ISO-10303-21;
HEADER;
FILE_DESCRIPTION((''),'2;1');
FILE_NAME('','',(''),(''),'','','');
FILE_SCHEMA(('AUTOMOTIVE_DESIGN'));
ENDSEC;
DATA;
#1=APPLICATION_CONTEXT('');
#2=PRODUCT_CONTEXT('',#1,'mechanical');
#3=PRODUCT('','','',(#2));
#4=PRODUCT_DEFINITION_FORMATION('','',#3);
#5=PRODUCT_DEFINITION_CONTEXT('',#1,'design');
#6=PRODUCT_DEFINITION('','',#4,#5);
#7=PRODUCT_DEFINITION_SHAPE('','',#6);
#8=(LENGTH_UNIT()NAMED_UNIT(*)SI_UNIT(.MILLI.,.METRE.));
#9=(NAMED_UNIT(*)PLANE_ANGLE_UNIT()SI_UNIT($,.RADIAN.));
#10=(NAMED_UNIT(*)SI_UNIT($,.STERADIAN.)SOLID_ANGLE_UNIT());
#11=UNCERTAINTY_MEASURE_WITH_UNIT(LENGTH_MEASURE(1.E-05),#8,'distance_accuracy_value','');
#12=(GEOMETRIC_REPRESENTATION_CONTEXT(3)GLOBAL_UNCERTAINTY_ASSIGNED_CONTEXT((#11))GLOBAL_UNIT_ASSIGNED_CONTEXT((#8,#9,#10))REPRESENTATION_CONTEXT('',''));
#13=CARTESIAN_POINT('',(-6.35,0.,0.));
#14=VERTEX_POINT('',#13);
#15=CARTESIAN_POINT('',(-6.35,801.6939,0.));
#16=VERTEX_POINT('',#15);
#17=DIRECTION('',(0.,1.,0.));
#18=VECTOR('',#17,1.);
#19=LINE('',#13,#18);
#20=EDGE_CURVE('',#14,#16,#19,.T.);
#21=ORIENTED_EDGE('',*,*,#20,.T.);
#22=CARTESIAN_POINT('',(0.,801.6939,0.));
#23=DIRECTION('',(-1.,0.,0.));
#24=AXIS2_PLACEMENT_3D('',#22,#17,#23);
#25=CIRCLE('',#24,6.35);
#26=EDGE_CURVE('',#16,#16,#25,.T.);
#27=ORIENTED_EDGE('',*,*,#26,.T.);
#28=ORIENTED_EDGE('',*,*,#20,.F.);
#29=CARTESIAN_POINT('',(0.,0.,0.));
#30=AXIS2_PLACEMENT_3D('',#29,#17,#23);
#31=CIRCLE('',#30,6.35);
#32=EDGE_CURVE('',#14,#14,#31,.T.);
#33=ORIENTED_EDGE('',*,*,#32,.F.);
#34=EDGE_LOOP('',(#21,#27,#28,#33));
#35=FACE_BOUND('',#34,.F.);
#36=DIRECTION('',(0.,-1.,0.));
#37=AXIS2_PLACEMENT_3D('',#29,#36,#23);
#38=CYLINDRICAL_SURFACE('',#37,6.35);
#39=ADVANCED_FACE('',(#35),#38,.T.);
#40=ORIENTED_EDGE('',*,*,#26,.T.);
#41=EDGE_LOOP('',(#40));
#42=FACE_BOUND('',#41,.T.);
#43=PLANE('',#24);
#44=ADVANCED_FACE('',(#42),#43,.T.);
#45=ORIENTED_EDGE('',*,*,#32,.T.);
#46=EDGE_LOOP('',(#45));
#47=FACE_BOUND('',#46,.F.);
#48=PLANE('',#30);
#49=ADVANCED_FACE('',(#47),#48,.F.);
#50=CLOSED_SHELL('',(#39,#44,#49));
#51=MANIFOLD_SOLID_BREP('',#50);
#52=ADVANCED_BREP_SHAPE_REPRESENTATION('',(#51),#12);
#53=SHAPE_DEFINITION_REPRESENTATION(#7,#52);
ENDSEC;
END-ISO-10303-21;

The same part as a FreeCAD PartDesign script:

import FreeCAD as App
import Part
import Sketcher

V = App.Vector
Q = App.Units.Quantity

doc = App.newDocument("Part")
params = doc.addObject("Spreadsheet::Sheet", "Params")
for row, (alias, value) in enumerate([
    ("sketch1_diameter", "0.5 in"),
    ("pad1_length", "801.6939 mm"),
], start=1):
    params.set(f"A{row}", alias)
    params.set(f"B{row}", "=" + value)
    params.setAlias(f"B{row}", alias)

body = doc.addObject("PartDesign::Body", "Body")

# Sketch on XZ plane
sketch1 = body.newObject("Sketcher::SketchObject", "Sketch")
sketch1.AttachmentSupport = (doc.getObject("XZ_Plane"), [""])
sketch1.MapMode = "FlatFace"
sketch1.addGeometry(Part.Circle(V(0, 0, 0), V(0, 0, 1), 6), False)
sketch1.addConstraint([
    Sketcher.Constraint("Coincident", 0, 3, -1, 1),
    Sketcher.Constraint("Diameter", 0, Q("0.5 in")),
])
sketch1.setExpression("Constraints[1]", "Params.sketch1_diameter")
pad1 = body.newObject("PartDesign::Pad", "Pad")
pad1.Profile = sketch1
pad1.setExpression("Length", "Params.pad1_length")
pad1.Reversed = True

doc.recompute()
